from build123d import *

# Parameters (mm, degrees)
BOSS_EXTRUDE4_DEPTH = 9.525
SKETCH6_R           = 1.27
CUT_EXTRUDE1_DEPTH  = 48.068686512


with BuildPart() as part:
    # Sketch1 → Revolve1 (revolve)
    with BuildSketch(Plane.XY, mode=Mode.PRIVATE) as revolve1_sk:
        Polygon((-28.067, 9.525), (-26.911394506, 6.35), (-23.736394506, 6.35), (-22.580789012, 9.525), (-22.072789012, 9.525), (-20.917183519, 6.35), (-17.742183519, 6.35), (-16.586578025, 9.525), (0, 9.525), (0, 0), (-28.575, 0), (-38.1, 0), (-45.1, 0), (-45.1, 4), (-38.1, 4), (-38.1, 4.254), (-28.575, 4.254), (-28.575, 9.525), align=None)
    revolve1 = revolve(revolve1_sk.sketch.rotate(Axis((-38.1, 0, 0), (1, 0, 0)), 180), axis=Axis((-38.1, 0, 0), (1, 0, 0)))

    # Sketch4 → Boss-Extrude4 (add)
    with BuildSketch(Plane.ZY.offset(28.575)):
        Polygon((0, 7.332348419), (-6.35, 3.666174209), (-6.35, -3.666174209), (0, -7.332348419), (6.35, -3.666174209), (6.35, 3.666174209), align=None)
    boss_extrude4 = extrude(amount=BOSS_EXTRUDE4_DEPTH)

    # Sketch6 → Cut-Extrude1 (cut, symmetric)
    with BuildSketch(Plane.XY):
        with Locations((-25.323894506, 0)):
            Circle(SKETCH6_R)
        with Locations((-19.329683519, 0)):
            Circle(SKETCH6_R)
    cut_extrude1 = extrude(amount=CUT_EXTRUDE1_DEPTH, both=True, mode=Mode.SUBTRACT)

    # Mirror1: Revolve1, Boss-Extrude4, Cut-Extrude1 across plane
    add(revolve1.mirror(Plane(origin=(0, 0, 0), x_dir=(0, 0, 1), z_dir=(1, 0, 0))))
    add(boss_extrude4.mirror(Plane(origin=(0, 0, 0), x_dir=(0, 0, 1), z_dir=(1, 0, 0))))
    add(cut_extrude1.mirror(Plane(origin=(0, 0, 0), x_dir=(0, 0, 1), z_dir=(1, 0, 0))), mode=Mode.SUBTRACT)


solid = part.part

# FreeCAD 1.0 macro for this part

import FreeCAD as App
import Part
import Sketcher

V = App.Vector
Q = App.Units.Quantity

doc = App.newDocument("Part")
body = doc.addObject("PartDesign::Body", "Body")

# Sketch on XY plane
sketch1 = body.newObject("Sketcher::SketchObject", "Sketch")
sketch1.AttachmentSupport = (doc.getObject("XY_Plane"), [""])
sketch1.MapMode = "FlatFace"
sketch1.addGeometry([
    Part.LineSegment(V(-26.91, 6.35, 0), V(-28.07, 9.53, 0)),  # 0
    Part.LineSegment(V(-28.07, 9.53, 0), V(-28.57, 9.53, 0)),  # 1
    Part.LineSegment(V(-28.57, 9.53, 0), V(-28.57, 4.25, 0)),  # 2
    Part.LineSegment(V(-28.57, 4.25, 0), V(-38.1, 4.25, 0)),  # 3
    Part.LineSegment(V(-38.1, 4.25, 0), V(-38.1, 4, 0)),  # 4
    Part.LineSegment(V(-38.1, 4, 0), V(-45.1, 4, 0)),  # 5
    Part.LineSegment(V(-45.1, 4, 0), V(-45.1, 0, 0)),  # 6
    Part.LineSegment(V(-45.1, 0, 0), V(0, 0, 0)),  # 7
    Part.LineSegment(V(0, 0, 0), V(0, 9.53, 0)),  # 8
    Part.LineSegment(V(0, 9.53, 0), V(-16.59, 9.53, 0)),  # 9
    Part.LineSegment(V(-16.59, 9.53, 0), V(-17.74, 6.35, 0)),  # 10
    Part.LineSegment(V(-17.74, 6.35, 0), V(-20.92, 6.35, 0)),  # 11
    Part.LineSegment(V(-20.92, 6.35, 0), V(-22.07, 9.53, 0)),  # 12
    Part.LineSegment(V(-22.07, 9.53, 0), V(-22.58, 9.53, 0)),  # 13
    Part.LineSegment(V(-22.58, 9.53, 0), V(-23.74, 6.35, 0)),  # 14
    Part.LineSegment(V(-23.74, 6.35, 0), V(-26.91, 6.35, 0)),  # 15
], False)
sketch1.addConstraint([
    Sketcher.Constraint("Coincident", 0, 2, 1, 1),
    Sketcher.Constraint("Coincident", 1, 2, 2, 1),
    Sketcher.Constraint("Coincident", 2, 2, 3, 1),
    Sketcher.Constraint("Coincident", 3, 2, 4, 1),
    Sketcher.Constraint("Coincident", 4, 2, 5, 1),
    Sketcher.Constraint("Coincident", 5, 2, 6, 1),
    Sketcher.Constraint("Coincident", 6, 2, 7, 1),
    Sketcher.Constraint("Coincident", 7, 2, 8, 1),
    Sketcher.Constraint("Coincident", 8, 2, 9, 1),
    Sketcher.Constraint("Coincident", 9, 2, 10, 1),
    Sketcher.Constraint("Coincident", 10, 2, 11, 1),
    Sketcher.Constraint("Coincident", 11, 2, 12, 1),
    Sketcher.Constraint("Coincident", 12, 2, 13, 1),
    Sketcher.Constraint("Coincident", 13, 2, 14, 1),
    Sketcher.Constraint("Coincident", 14, 2, 15, 1),
    Sketcher.Constraint("Coincident", 15, 2, 0, 1),
    Sketcher.Constraint("Horizontal", 1),
    Sketcher.Constraint("Vertical", 2),
    Sketcher.Constraint("Horizontal", 3),
    Sketcher.Constraint("Vertical", 4),
    Sketcher.Constraint("Horizontal", 5),
    Sketcher.Constraint("Vertical", 6),
    Sketcher.Constraint("Horizontal", 7),
    Sketcher.Constraint("Vertical", 8),
    Sketcher.Constraint("Horizontal", 9),
    Sketcher.Constraint("Horizontal", 11),
    Sketcher.Constraint("Horizontal", 13),
    Sketcher.Constraint("Horizontal", 15),
    Sketcher.Constraint("Coincident", 7, 2, -1, 1),
    Sketcher.Constraint("Parallel", 0, 12),
    Sketcher.Constraint("Parallel", 10, 14),
    Sketcher.Constraint("Horizontal", 1, 2, 8, 2),
    Sketcher.Constraint("Horizontal", 9, 2, 12, 2),
    Sketcher.Constraint("Horizontal", 11, 2, 14, 2),
    Sketcher.Constraint("Equal", 1, 13),
    Sketcher.Constraint("Equal", 11, 15),
    Sketcher.Constraint("Equal", 3, 8),
    Sketcher.Constraint("Equal", 0, 10),
    Sketcher.Constraint("Angle", 0, Q("110 deg")),
    Sketcher.Constraint("DistanceX", 1, 2, 1, 1, Q("0.02 in")),
    Sketcher.Constraint("DistanceY", 4, 2, 4, 1, Q("0.01 in")),
    Sketcher.Constraint("DistanceX", 3, 2, -1, 1, Q("1.5 in")),
    Sketcher.Constraint("DistanceX", 3, 2, 3, 1, Q("0.375 in")),
    Sketcher.Constraint("DistanceX", 11, 2, 11, 1, Q("0.125 in")),
    Sketcher.Constraint("DistanceY", -1, 1, 10, 2, Q("0.25 in")),
    Sketcher.Constraint("DistanceX", 5, 2, 5, 1, Q("7 mm")),
    Sketcher.Constraint("DistanceY", 2, 2, 2, 1, Q("5.271 mm")),
])
revolution = body.newObject("PartDesign::Revolution", "Revolution")
revolution.Profile = sketch1
revolution.ReferenceAxis = (sketch1, ["H_Axis"])
revolution.Angle = 360

# Sketch on YZ plane
sketch2 = body.newObject("Sketcher::SketchObject", "Sketch001")
sketch2.AttachmentSupport = (doc.getObject("YZ_Plane"), [""])
sketch2.MapMode = "FlatFace"
sketch2.AttachmentOffset = App.Placement(V(0, 0, -1.125 * 25.4), App.Rotation())
sketch2.addGeometry([
    Part.LineSegment(V(7, 0, 0), V(4, -6, 0)),  # 0
    Part.LineSegment(V(4, -6, 0), V(-4, -6, 0)),  # 1
    Part.LineSegment(V(-4, -6, 0), V(-7, 0, 0)),  # 2
    Part.LineSegment(V(-7, 0, 0), V(-4, 6, 0)),  # 3
    Part.LineSegment(V(-4, 6, 0), V(4, 6, 0)),  # 4
    Part.LineSegment(V(4, 6, 0), V(7, 0, 0)),  # 5
], False)
sketch2.addConstraint([
    Sketcher.Constraint("Coincident", 0, 2, 1, 1),
    Sketcher.Constraint("Coincident", 1, 2, 2, 1),
    Sketcher.Constraint("Coincident", 2, 2, 3, 1),
    Sketcher.Constraint("Coincident", 3, 2, 4, 1),
    Sketcher.Constraint("Coincident", 4, 2, 5, 1),
    Sketcher.Constraint("Coincident", 5, 2, 0, 1),
    Sketcher.Constraint("Horizontal", 1),
    Sketcher.Constraint("Horizontal", 4),
    Sketcher.Constraint("Symmetric", 0, 2, 3, 2, -1, 1),
    Sketcher.Constraint("Symmetric", 2, 2, 5, 2, -1, 1),
    Sketcher.Constraint("PointOnObject", 2, 2, -1),
    Sketcher.Constraint("Parallel", 2, 5),
    Sketcher.Constraint("Vertical", 1, 2, 3, 2),
    Sketcher.Constraint("Angle", 0, Q("-120 deg")),
    Sketcher.Constraint("DistanceY", 1, 2, 3, 2, Q("0.5 in")),
    Sketcher.Constraint("DistanceX", 1, 2, 1, 1, Q("7.332348 mm")),
])
pad1 = body.newObject("PartDesign::Pad", "Pad")
pad1.Profile = sketch2
pad1.Length = Q("0.375 in")
pad1.Reversed = True

# Sketch on XY plane
sketch3 = body.newObject("Sketcher::SketchObject", "Sketch002")
sketch3.AttachmentSupport = (doc.getObject("XY_Plane"), [""])
sketch3.MapMode = "FlatFace"
sketch3.addGeometry([
    Part.Circle(V(-25.3, 0, 0), V(0, 0, 1), 1.3),
    Part.Circle(V(-19.3, 0, 0), V(0, 0, 1), 1.3),
], False)
sketch3.addConstraint([
    Sketcher.Constraint("Equal", 0, 1),
    Sketcher.Constraint("PointOnObject", 0, 3, -1),
    Sketcher.Constraint("PointOnObject", 1, 3, -1),
    Sketcher.Constraint("Diameter", 0, Q("0.1 in")),
    Sketcher.Constraint("DistanceX", 0, 3, 1, 3, Q("5.994211 mm")),
    Sketcher.Constraint("DistanceX", 0, 3, -1, 1, Q("25.323895 mm")),
])
pocket1 = body.newObject("PartDesign::Pocket", "Pocket")
pocket1.Profile = sketch3
pocket1.Length = 96.137373
pocket1.Midplane = True
doc.recompute()

mirrored = body.newObject("PartDesign::Mirrored", "Mirrored")
mirrored.Originals = [revolution, pad1, pocket1]
mirrored.MirrorPlane = (doc.getObject("YZ_Plane"), [""])
body.Tip = mirrored

doc.recompute()
